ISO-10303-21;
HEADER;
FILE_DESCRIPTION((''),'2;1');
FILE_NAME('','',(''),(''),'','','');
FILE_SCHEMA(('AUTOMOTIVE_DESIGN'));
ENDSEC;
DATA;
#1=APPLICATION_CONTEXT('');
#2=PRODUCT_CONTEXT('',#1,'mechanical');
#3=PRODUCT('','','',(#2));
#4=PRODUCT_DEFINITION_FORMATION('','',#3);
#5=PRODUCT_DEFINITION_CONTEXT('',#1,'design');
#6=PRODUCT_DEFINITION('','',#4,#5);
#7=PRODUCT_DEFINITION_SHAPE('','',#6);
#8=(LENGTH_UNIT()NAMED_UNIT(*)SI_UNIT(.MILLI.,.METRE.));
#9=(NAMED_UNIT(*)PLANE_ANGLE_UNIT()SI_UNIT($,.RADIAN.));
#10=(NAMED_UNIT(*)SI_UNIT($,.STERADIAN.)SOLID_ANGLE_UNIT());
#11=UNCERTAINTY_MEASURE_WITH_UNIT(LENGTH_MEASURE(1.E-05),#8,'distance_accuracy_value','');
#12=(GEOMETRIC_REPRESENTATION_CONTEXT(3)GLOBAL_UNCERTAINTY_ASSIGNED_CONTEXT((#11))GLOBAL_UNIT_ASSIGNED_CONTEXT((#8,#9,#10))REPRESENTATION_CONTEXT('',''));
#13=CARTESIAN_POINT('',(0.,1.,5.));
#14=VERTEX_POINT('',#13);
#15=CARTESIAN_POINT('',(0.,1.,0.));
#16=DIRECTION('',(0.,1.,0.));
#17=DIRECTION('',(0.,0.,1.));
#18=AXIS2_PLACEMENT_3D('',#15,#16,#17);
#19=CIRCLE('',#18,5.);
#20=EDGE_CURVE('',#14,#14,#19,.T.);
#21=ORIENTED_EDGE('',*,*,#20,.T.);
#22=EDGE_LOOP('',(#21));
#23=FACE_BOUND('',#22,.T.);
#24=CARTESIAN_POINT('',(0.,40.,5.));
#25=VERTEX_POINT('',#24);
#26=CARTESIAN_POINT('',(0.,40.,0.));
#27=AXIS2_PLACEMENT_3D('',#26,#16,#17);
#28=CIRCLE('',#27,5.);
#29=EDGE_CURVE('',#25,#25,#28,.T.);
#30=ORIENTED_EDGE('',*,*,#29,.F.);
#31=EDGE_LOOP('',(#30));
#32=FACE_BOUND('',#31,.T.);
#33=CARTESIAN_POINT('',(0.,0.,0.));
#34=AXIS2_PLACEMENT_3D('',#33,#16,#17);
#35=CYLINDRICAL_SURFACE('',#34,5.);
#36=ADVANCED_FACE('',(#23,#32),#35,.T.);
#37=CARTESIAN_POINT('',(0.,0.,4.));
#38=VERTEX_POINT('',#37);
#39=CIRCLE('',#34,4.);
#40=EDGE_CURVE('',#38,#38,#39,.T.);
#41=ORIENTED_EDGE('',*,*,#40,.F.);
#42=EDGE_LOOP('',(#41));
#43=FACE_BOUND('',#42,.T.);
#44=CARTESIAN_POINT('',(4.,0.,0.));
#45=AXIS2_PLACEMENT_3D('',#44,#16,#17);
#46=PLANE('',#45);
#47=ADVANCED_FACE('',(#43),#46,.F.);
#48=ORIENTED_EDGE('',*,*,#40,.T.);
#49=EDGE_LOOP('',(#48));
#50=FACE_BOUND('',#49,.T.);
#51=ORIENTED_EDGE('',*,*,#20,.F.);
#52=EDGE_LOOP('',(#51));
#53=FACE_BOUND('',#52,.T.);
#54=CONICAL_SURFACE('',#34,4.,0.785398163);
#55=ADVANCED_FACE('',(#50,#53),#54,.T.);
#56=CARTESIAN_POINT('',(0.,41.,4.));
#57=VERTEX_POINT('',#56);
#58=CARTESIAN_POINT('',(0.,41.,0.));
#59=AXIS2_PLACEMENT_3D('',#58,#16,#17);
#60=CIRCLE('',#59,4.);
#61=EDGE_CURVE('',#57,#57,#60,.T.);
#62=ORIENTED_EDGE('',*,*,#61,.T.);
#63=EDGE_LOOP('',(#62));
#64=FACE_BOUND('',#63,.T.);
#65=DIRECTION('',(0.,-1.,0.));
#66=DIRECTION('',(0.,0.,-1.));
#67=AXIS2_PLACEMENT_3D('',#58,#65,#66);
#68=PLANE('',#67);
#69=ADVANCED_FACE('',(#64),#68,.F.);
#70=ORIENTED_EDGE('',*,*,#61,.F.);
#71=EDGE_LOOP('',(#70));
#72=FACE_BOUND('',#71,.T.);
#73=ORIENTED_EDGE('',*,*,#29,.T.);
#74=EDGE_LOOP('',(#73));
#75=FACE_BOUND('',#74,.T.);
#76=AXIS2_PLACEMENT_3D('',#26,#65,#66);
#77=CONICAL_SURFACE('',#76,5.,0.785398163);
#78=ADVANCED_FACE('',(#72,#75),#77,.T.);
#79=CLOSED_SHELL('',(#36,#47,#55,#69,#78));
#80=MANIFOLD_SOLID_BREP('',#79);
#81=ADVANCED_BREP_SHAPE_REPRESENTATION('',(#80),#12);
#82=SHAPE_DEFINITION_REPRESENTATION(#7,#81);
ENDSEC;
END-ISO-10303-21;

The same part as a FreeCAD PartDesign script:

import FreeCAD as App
import Part
import Sketcher
Q = App.Units.Quantity

doc = App.newDocument("Part")
body = doc.addObject("PartDesign::Body", "Body")

sketch1 = body.newObject("Sketcher::SketchObject", "Sketch")
sketch1.AttachmentSupport = (doc.getObject("XY_Plane"), [""])
sketch1.MapMode = "FlatFace"
sketch1.addGeometry(Part.LineSegment(App.Vector(0, 41, 0), App.Vector(0, 0, 0)), False)
sketch1.addGeometry(Part.LineSegment(App.Vector(0, 0, 0), App.Vector(4, 0, 0)), False)
sketch1.addGeometry(Part.LineSegment(App.Vector(4, 0, 0), App.Vector(5, 1, 0)), False)
sketch1.addGeometry(Part.LineSegment(App.Vector(5, 1, 0), App.Vector(5, 40, 0)), False)
sketch1.addGeometry(Part.LineSegment(App.Vector(5, 40, 0), App.Vector(4, 41, 0)), False)
sketch1.addGeometry(Part.LineSegment(App.Vector(4, 41, 0), App.Vector(0, 41, 0)), False)
sketch1.addConstraint(Sketcher.Constraint("Coincident", 0, 2, 1, 1))
sketch1.addConstraint(Sketcher.Constraint("Coincident", 1, 2, 2, 1))
sketch1.addConstraint(Sketcher.Constraint("Coincident", 2, 2, 3, 1))
sketch1.addConstraint(Sketcher.Constraint("Coincident", 3, 2, 4, 1))
sketch1.addConstraint(Sketcher.Constraint("Coincident", 4, 2, 5, 1))
sketch1.addConstraint(Sketcher.Constraint("Coincident", 5, 2, 0, 1))
sketch1.addConstraint(Sketcher.Constraint("Vertical", 0))
sketch1.addConstraint(Sketcher.Constraint("Horizontal", 1))
sketch1.addConstraint(Sketcher.Constraint("Vertical", 3))
sketch1.addConstraint(Sketcher.Constraint("Horizontal", 5))
sketch1.addConstraint(Sketcher.Constraint("Coincident", 0, 2, -1, 1))
sketch1.addConstraint(Sketcher.Constraint("Perpendicular", 2, 4))
sketch1.addConstraint(Sketcher.Constraint("Vertical", 1, 2, 4, 2))
sketch1.addConstraint(Sketcher.Constraint("Equal", 2, 4))
sketch1.addConstraint(Sketcher.Constraint("DistanceX", 1, 1, 1, 2, Q("4 mm")))
sketch1.addConstraint(Sketcher.Constraint("DistanceY", 0, 2, 0, 1, Q("41 mm")))
sketch1.addConstraint(Sketcher.Constraint("DistanceY", 3, 1, 3, 2, Q("39 mm")))
revolution = body.newObject("PartDesign::Revolution", "Revolution")
revolution.Profile = sketch1
revolution.ReferenceAxis = (sketch1, ["V_Axis"])
revolution.Angle = 360

doc.recompute()
